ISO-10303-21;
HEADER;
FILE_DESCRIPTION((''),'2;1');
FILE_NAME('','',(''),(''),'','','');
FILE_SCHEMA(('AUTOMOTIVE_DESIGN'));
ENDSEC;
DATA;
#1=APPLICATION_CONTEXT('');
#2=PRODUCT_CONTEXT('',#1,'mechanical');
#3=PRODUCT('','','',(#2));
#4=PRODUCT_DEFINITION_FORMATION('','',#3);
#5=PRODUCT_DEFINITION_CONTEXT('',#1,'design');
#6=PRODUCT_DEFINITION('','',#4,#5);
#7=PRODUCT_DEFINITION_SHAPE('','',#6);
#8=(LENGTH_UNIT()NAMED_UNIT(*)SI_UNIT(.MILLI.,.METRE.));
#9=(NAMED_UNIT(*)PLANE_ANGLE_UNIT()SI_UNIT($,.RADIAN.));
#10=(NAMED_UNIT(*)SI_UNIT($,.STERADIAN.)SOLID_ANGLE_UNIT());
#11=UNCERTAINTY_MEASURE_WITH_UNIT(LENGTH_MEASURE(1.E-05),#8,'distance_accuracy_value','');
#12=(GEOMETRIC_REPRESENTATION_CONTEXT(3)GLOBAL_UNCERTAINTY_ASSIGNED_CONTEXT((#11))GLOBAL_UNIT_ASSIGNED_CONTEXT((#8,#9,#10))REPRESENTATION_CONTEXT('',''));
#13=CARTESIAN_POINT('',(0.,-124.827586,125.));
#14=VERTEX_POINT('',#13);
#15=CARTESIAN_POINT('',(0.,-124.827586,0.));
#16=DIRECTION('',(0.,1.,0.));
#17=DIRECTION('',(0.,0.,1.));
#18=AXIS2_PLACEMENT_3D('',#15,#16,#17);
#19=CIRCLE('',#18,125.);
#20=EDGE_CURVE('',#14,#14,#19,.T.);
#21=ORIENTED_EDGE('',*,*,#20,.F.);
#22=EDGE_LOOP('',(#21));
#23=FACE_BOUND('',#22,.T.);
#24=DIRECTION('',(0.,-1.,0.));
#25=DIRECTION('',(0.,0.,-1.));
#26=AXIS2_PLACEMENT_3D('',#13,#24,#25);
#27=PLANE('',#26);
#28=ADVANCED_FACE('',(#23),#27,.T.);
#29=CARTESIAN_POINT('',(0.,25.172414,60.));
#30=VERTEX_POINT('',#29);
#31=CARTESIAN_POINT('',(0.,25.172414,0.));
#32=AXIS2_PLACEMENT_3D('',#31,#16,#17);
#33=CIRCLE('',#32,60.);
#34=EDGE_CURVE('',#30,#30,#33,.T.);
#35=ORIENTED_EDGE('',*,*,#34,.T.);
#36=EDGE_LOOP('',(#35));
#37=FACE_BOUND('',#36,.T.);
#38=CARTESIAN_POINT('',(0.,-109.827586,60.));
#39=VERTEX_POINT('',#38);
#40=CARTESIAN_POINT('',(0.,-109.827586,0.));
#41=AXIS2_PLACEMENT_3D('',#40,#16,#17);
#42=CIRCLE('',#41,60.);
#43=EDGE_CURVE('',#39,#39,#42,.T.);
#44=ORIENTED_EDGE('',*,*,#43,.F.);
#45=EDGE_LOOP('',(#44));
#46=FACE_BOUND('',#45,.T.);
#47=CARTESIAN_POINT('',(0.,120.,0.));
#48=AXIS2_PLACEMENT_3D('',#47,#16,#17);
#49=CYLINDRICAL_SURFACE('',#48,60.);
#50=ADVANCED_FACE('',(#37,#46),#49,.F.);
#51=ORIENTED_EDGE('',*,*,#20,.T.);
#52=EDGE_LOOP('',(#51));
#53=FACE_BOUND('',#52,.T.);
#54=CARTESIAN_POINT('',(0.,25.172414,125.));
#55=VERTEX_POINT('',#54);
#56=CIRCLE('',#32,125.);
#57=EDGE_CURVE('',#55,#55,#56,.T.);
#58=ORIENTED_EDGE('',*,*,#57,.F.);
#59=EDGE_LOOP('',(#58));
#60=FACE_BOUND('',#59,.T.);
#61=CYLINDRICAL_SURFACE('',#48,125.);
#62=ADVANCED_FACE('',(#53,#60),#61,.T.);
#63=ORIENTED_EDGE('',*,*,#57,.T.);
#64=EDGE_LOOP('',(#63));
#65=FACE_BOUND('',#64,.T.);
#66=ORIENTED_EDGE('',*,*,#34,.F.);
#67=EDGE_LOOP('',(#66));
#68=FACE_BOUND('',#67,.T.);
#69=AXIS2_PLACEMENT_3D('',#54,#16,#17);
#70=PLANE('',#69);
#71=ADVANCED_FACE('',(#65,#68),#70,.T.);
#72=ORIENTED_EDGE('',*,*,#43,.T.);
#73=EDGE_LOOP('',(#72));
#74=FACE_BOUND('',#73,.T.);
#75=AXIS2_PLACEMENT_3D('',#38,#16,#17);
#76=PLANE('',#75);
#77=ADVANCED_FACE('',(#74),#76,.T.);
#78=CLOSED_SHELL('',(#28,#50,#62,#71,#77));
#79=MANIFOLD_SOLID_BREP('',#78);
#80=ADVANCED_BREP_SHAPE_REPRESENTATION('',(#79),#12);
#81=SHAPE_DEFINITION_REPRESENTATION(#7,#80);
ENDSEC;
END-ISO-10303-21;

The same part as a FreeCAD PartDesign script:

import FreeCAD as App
import Part
import Sketcher


def add_polygon(sketch, points):
    """Adds a closed chain of lines whose ends are joined by coincident constraints."""
    first, n = sketch.GeometryCount, len(points)
    for a, b in zip(points, points[1:] + points[:1]):
        sketch.addGeometry(Part.LineSegment(App.Vector(*a, 0), App.Vector(*b, 0)), False)
    for i in range(n):
        sketch.addConstraint(Sketcher.Constraint("Coincident", first + i, 2, first + (i + 1) % n, 1))

doc = App.newDocument("Part")
body = doc.addObject("PartDesign::Body", "Body")

# Sketch on YZ plane
sketch1 = body.newObject("Sketcher::SketchObject", "Sketch")
sketch1.AttachmentSupport = (doc.getObject("YZ_Plane"), [""])
sketch1.MapMode = "FlatFace"
add_polygon(sketch1, [(-109.827586, 60), (25.172414, 60), (25.172414, 125), (-124.827586, 125), (-124.827586, 0), (-109.827586, 0)])  # lines 0-5
sketch1.addConstraint([
    Sketcher.Constraint("Horizontal", 0),
    Sketcher.Constraint("Vertical", 1),
    Sketcher.Constraint("Horizontal", 2),
    Sketcher.Constraint("Vertical", 3),
    Sketcher.Constraint("Horizontal", 4),
    Sketcher.Constraint("Vertical", 5),
    Sketcher.Constraint("PointOnObject", 3, 2, -1),
    Sketcher.Constraint("DistanceX", 0, 1, 0, 2, 135.0),
    Sketcher.Constraint("DistanceX", 2, 2, 2, 1, 150.0),
    Sketcher.Constraint("DistanceY", 1, 1, 1, 2, 65.0),
    Sketcher.Constraint("DistanceY", 3, 2, 3, 1, 125.0),
    Sketcher.Constraint("DistanceX", -1, 1, 0, 2, 25.172414),
])
revolution = body.newObject("PartDesign::Revolution", "Revolution")
revolution.Profile = sketch1
revolution.ReferenceAxis = (sketch1, ["H_Axis"])
revolution.Angle = 360

doc.recompute()
